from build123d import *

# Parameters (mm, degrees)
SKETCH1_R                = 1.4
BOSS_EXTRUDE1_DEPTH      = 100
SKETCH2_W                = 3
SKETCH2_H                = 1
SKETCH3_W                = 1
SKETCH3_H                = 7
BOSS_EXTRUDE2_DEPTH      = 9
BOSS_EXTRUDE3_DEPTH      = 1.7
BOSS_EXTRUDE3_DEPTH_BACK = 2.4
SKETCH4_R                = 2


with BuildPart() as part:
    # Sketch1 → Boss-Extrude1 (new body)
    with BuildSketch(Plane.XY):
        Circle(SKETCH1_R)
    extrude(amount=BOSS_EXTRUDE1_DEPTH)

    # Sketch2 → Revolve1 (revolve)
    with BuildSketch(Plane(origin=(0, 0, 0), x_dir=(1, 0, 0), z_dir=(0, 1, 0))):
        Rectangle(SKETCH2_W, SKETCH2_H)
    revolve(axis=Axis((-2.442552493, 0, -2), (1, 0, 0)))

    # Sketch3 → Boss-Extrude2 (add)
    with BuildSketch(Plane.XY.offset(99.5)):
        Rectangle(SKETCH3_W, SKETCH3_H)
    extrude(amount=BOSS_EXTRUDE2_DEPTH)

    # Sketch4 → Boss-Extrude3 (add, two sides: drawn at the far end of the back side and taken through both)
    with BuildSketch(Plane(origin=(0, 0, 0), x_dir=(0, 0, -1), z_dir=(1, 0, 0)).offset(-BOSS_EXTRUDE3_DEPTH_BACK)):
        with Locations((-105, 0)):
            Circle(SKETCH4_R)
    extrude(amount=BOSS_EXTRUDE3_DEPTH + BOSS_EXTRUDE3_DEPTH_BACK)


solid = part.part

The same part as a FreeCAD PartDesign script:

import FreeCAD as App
import Part
import Sketcher
from FreeCAD import Vector
Q = App.Units.Quantity


def add_polygon(sketch, points):
    """Adds a closed chain of lines whose ends are joined by coincident constraints."""
    first, n = sketch.GeometryCount, len(points)
    for a, b in zip(points, points[1:] + points[:1]):
        sketch.addGeometry(Part.LineSegment(App.Vector(*a, 0), App.Vector(*b, 0)), False)
    for i in range(n):
        sketch.addConstraint(Sketcher.Constraint("Coincident", first + i, 2, first + (i + 1) % n, 1))

doc = App.newDocument("Part")
body = doc.addObject("PartDesign::Body", "Body")

sketch1 = doc.addObject("Sketcher::SketchObject", "Sketch")
body.addObject(sketch1)
sketch1.AttachmentSupport = (doc.XY_Plane, [""])
sketch1.MapMode = "FlatFace"
sketch1.addGeometry(Part.Circle(Vector(0, 0, 0), Vector(0, 0, 1), 1.4), False)
sketch1.addConstraint(Sketcher.Constraint("Coincident", 0, 3, -1, 1))
sketch1.addConstraint(Sketcher.Constraint("Diameter", 0, Q("2.8 mm")))
pad1 = doc.addObject("PartDesign::Pad", "Pad")
body.addObject(pad1)
pad1.Profile = sketch1
pad1.Length = 100

sketch2 = doc.addObject("Sketcher::SketchObject", "Sketch001")
body.addObject(sketch2)
sketch2.AttachmentSupport = (doc.XZ_Plane, [""])
sketch2.MapMode = "FlatFace"
add_polygon(sketch2, [(-1.5, -0.5), (-1.5, 0.5), (1.5, 0.5), (1.5, -0.5)])
sketch2.addGeometry(Part.LineSegment(Vector(-1.5, -2, 0), Vector(1.5, -2, 0)), True)
sketch2.addConstraint(Sketcher.Constraint("Vertical", 0))
sketch2.addConstraint(Sketcher.Constraint("Horizontal", 1))
sketch2.addConstraint(Sketcher.Constraint("Vertical", 2))
sketch2.addConstraint(Sketcher.Constraint("Horizontal", 3))
sketch2.addConstraint(Sketcher.Constraint("Horizontal", 4))
sketch2.addConstraint(Sketcher.Constraint("Symmetric", 0, 2, 2, 2, -1, 1))
sketch2.addConstraint(Sketcher.Constraint("Vertical", 3, 2, 4, 1))
sketch2.addConstraint(Sketcher.Constraint("Vertical", 2, 2, 4, 2))
sketch2.addConstraint(Sketcher.Constraint("DistanceX", 1, 1, 1, 2, Q("3 mm")))
sketch2.addConstraint(Sketcher.Constraint("DistanceY", 0, 1, 0, 2, Q("1 mm")))
sketch2.addConstraint(Sketcher.Constraint("DistanceY", 4, 1, -1, 1, Q("2 mm")))
revolution = doc.addObject("PartDesign::Revolution", "Revolution")
body.addObject(revolution)
revolution.Profile = sketch2
revolution.ReferenceAxis = (sketch2, ["Axis0"])
revolution.Angle = 360

sketch3 = doc.addObject("Sketcher::SketchObject", "Sketch002")
body.addObject(sketch3)
sketch3.AttachmentSupport = (doc.XY_Plane, [""])
sketch3.MapMode = "FlatFace"
sketch3.AttachmentOffset = App.Placement(Vector(0, 0, 99.5), App.Rotation())
add_polygon(sketch3, [(-0.5, 3.5), (-0.5, -3.5), (0.5, -3.5), (0.5, 3.5)])
sketch3.addConstraint(Sketcher.Constraint("Vertical", 0))
sketch3.addConstraint(Sketcher.Constraint("Horizontal", 1))
sketch3.addConstraint(Sketcher.Constraint("Vertical", 2))
sketch3.addConstraint(Sketcher.Constraint("Horizontal", 3))
sketch3.addConstraint(Sketcher.Constraint("Symmetric", 0, 2, 2, 2, -1, 1))
sketch3.addConstraint(Sketcher.Constraint("DistanceX", 1, 1, 1, 2, Q("1 mm")))
sketch3.addConstraint(Sketcher.Constraint("DistanceY", 0, 2, 0, 1, Q("7 mm")))
pad2 = doc.addObject("PartDesign::Pad", "Pad001")
body.addObject(pad2)
pad2.Profile = sketch3
pad2.Length = 9

sketch4 = doc.addObject("Sketcher::SketchObject", "Sketch003")
body.addObject(sketch4)
sketch4.AttachmentSupport = (doc.YZ_Plane, [""])
sketch4.MapMode = "FlatFace"
sketch4.addGeometry(Part.Circle(Vector(0, 105, 0), Vector(0, 0, 1), 2), False)
sketch4.addConstraint(Sketcher.Constraint("PointOnObject", 0, 3, -2))
sketch4.addConstraint(Sketcher.Constraint("Diameter", 0, Q("4 mm")))
sketch4.addConstraint(Sketcher.Constraint("DistanceY", -1, 1, 0, 3, Q("105 mm")))
pad3 = doc.addObject("PartDesign::Pad", "Pad002")
body.addObject(pad3)
pad3.Profile = sketch4
pad3.Type = "TwoLengths"
pad3.Length = 1.7
pad3.Length2 = 2.4

doc.recompute()
